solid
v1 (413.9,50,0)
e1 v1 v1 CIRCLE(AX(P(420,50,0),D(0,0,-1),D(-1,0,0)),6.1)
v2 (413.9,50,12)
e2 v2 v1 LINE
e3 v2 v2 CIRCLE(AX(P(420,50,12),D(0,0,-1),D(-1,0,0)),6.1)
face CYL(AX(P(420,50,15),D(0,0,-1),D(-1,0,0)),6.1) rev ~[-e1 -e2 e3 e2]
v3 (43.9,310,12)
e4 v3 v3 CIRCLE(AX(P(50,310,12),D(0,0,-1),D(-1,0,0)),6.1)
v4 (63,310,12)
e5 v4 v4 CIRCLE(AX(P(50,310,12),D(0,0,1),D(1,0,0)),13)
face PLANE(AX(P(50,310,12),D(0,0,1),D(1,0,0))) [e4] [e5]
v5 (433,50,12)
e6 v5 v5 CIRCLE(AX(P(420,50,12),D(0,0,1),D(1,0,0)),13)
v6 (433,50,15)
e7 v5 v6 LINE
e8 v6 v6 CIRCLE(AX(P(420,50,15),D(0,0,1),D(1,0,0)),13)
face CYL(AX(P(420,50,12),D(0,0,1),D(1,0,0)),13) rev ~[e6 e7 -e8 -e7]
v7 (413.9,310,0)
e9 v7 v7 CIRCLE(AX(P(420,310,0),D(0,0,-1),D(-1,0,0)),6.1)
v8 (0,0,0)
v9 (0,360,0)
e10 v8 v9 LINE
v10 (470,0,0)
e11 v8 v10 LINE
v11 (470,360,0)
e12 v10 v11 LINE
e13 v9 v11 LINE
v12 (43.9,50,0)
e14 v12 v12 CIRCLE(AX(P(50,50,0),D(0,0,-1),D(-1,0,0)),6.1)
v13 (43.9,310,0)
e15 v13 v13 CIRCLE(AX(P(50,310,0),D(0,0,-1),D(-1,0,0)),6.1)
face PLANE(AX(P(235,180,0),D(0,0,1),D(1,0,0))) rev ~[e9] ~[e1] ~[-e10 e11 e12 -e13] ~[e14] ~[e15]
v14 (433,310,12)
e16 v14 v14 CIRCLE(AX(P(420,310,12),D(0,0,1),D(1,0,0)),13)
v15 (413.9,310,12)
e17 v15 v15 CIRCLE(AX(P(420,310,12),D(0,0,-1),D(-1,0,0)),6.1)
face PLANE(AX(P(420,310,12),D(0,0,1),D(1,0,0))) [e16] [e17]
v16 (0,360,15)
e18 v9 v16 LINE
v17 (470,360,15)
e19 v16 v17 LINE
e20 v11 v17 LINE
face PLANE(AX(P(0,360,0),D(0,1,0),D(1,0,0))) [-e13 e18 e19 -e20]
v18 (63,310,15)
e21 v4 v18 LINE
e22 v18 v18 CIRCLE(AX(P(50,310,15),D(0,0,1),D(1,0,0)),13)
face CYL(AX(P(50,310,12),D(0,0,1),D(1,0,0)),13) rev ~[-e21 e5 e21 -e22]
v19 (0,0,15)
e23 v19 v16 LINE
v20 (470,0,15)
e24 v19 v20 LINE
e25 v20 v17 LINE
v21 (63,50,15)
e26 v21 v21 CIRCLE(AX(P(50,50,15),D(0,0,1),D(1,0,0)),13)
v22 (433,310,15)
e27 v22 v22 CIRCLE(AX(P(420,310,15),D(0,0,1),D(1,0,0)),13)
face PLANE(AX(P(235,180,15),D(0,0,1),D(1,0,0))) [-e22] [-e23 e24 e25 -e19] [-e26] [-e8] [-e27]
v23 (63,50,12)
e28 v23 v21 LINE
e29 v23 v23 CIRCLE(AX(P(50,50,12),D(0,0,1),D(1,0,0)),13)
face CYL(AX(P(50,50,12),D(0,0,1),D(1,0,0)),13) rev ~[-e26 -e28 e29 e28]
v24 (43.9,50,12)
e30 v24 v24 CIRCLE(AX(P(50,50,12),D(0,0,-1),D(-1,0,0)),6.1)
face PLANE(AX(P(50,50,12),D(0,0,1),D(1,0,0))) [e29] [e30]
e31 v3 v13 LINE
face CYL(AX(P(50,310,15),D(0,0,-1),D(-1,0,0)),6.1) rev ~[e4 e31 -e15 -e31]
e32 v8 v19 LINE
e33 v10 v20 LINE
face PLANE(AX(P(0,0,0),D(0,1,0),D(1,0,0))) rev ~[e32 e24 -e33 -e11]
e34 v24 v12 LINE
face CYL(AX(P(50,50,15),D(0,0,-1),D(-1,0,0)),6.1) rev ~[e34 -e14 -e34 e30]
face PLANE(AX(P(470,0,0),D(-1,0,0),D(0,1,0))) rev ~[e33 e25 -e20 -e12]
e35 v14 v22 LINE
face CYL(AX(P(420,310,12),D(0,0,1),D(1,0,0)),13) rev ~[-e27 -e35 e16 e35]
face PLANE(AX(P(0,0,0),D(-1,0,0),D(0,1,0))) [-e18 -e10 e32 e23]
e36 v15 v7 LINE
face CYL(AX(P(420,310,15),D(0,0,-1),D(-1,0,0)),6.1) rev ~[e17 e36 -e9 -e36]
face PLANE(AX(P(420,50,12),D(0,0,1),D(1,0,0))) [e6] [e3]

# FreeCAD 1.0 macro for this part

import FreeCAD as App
import Part
import Sketcher

V = App.Vector
Q = App.Units.Quantity


def add_polygon(sketch, points):
    """Adds a closed chain of lines whose ends are joined by coincident constraints."""
    first, n = sketch.GeometryCount, len(points)
    for a, b in zip(points, points[1:] + points[:1]):
        sketch.addGeometry(Part.LineSegment(App.Vector(*a, 0), App.Vector(*b, 0)), False)
    for i in range(n):
        sketch.addConstraint(Sketcher.Constraint("Coincident", first + i, 2, first + (i + 1) % n, 1))

doc = App.newDocument("Part")
body = doc.addObject("PartDesign::Body", "Body")

# Sketch on XY plane
sketch1 = body.newObject("Sketcher::SketchObject", "Sketch")
sketch1.AttachmentSupport = (doc.getObject("XY_Plane"), [""])
sketch1.MapMode = "FlatFace"
add_polygon(sketch1, [(0, 360), (0, 0), (470, 0), (470, 360)])  # lines 0-3
sketch1.addConstraint(Sketcher.Constraint("Vertical", 0))
sketch1.addConstraint(Sketcher.Constraint("Horizontal", 1))
sketch1.addConstraint(Sketcher.Constraint("Vertical", 2))
sketch1.addConstraint(Sketcher.Constraint("Horizontal", 3))
sketch1.addConstraint(Sketcher.Constraint("Coincident", 0, 2, -1, 1))
sketch1.addConstraint(Sketcher.Constraint("DistanceX", 1, 1, 1, 2, Q("470 mm")))
sketch1.addConstraint(Sketcher.Constraint("DistanceY", 0, 2, 0, 1, Q("360 mm")))
pad1 = body.newObject("PartDesign::Pad", "Pad")
pad1.Profile = sketch1
pad1.Length = 15

# Sketch on XY plane
sketch2 = body.newObject("Sketcher::SketchObject", "Sketch001")
sketch2.AttachmentSupport = (doc.getObject("XY_Plane"), [""])
sketch2.MapMode = "FlatFace"
sketch2.AttachmentOffset = App.Placement(V(0, 0, 15), App.Rotation())
sketch2.addGeometry(Part.Circle(V(50, 310, 0), V(0, 0, 1), 6), False)
sketch2.addGeometry(Part.Circle(V(50, 50, 0), V(0, 0, 1), 6), False)
sketch2.addGeometry(Part.Circle(V(420, 50, 0), V(0, 0, 1), 6), False)
sketch2.addGeometry(Part.Circle(V(420, 310, 0), V(0, 0, 1), 6), False)
sketch2.addConstraint(Sketcher.Constraint("Equal", 0, 1))
sketch2.addConstraint(Sketcher.Constraint("Equal", 1, 2))
sketch2.addConstraint(Sketcher.Constraint("Equal", 2, 3))
sketch2.addConstraint(Sketcher.Constraint("Horizontal", 1, 3, 2, 3))
sketch2.addConstraint(Sketcher.Constraint("Horizontal", 0, 3, 3, 3))
sketch2.addConstraint(Sketcher.Constraint("Vertical", 0, 3, 1, 3))
sketch2.addConstraint(Sketcher.Constraint("Vertical", 2, 3, 3, 3))
sketch2.addConstraint(Sketcher.Constraint("Diameter", 0, Q("12.2 mm")))
sketch2.addConstraint(Sketcher.Constraint("DistanceX", -1, 1, 0, 3, Q("50 mm")))
sketch2.addConstraint(Sketcher.Constraint("DistanceY", -1, 1, 0, 3, Q("310 mm")))
sketch2.addConstraint(Sketcher.Constraint("DistanceY", -1, 1, 1, 3, Q("50 mm")))
sketch2.addConstraint(Sketcher.Constraint("DistanceX", -1, 1, 2, 3, Q("420 mm")))
doc.recompute()
hole = body.newObject("PartDesign::Hole", "Hole")
hole.Profile = sketch2
hole.ThreadType = "None"
hole.Diameter = 12.2
hole.DepthType = "Dimension"
hole.Depth = 15
hole.DrillPoint = "Flat"
hole.HoleCutType = "Counterbore"
hole.HoleCutDiameter = 26
hole.HoleCutDepth = 3

doc.recompute()
